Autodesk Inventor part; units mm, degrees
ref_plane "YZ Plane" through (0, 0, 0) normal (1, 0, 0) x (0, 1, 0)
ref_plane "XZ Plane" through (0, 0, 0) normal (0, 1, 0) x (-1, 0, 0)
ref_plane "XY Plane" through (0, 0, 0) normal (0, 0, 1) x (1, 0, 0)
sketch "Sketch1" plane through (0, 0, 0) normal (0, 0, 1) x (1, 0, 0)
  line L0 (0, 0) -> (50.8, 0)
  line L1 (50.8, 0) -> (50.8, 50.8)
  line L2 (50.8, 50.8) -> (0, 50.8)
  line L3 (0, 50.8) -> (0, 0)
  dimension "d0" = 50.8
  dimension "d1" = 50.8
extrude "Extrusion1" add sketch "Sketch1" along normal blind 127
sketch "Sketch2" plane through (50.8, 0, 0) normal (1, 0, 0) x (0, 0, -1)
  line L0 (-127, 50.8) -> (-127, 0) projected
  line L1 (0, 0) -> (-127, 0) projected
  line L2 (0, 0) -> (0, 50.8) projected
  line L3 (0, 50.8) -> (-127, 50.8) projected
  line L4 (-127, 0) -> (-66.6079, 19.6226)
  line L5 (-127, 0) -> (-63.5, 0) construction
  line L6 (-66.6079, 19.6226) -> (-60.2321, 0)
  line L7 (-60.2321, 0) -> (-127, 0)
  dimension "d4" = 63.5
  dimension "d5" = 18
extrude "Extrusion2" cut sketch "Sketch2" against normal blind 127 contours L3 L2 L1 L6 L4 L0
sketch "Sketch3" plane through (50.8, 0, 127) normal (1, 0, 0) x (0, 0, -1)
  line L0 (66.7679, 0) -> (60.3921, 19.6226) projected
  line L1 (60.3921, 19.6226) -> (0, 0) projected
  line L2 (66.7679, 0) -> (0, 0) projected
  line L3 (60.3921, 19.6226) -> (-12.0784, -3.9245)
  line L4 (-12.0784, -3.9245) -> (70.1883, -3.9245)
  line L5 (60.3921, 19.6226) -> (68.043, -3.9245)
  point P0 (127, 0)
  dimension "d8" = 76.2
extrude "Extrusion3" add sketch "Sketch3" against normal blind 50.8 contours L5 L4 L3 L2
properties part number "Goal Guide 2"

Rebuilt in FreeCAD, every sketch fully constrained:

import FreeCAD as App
import Part
import Sketcher

V = App.Vector
Q = App.Units.Quantity


def add_polygon(sketch, points):
    """Adds a closed chain of lines whose ends are joined by coincident constraints."""
    first, n = sketch.GeometryCount, len(points)
    for a, b in zip(points, points[1:] + points[:1]):
        sketch.addGeometry(Part.LineSegment(App.Vector(*a, 0), App.Vector(*b, 0)), False)
    for i in range(n):
        sketch.addConstraint(Sketcher.Constraint("Coincident", first + i, 2, first + (i + 1) % n, 1))

doc = App.newDocument("Part")
body = doc.addObject("PartDesign::Body", "Body")

# Sketch on XY plane
sketch1 = doc.addObject("Sketcher::SketchObject", "Sketch")
body.addObject(sketch1)
sketch1.AttachmentSupport = (doc.XY_Plane, [""])
sketch1.MapMode = "FlatFace"
add_polygon(sketch1, [(0, 51), (0, 0), (51, 0), (51, 51)])  # lines 0-3
sketch1.addConstraint([
    Sketcher.Constraint("Vertical", 0),
    Sketcher.Constraint("Horizontal", 1),
    Sketcher.Constraint("Vertical", 2),
    Sketcher.Constraint("Horizontal", 3),
    Sketcher.Constraint("Coincident", 0, 2, -1, 1),
    Sketcher.Constraint("Equal", 3, 0),
    Sketcher.Constraint("DistanceX", 1, 1, 1, 2, Q("2 in")),
])
pad1 = doc.addObject("PartDesign::Pad", "Pad")
body.addObject(pad1)
pad1.Profile = sketch1
pad1.Length = Q("5 in")

# Sketch on YZ plane
sketch2 = doc.addObject("Sketcher::SketchObject", "Sketch001")
body.addObject(sketch2)
sketch2.AttachmentSupport = (doc.YZ_Plane, [""])
sketch2.MapMode = "FlatFace"
sketch2.AttachmentOffset = App.Placement(V(0, 0, 2 * 25.4), App.Rotation())
add_polygon(sketch2, [(51, 0), (51, 127), (0, 127), (20, 67), (0, 60), (0, 0)])  # lines 0-5
sketch2.addConstraint([
    Sketcher.Constraint("Vertical", 0),
    Sketcher.Constraint("Horizontal", 1),
    Sketcher.Constraint("Vertical", 4),
    Sketcher.Constraint("Horizontal", 5),
    Sketcher.Constraint("Coincident", 4, 2, -1, 1),
    Sketcher.Constraint("PointOnObject", 1, 2, -2),
    Sketcher.Constraint("Perpendicular", 2, 3),
    Sketcher.Constraint("Distance", 2, Q("2.5 in")),
    Sketcher.Constraint("DistanceX", 1, 2, 1, 1, Q("2 in")),
    Sketcher.Constraint("DistanceY", 0, 1, 0, 2, Q("5 in")),
    Sketcher.Constraint("Angle", 2, Q("-72 deg")),
])
pocket1 = doc.addObject("PartDesign::Pocket", "Pocket")
body.addObject(pocket1)
pocket1.Profile = sketch2
pocket1.Length = Q("5 in")

# Sketch on YZ plane
sketch3 = doc.addObject("Sketcher::SketchObject", "Sketch002")
body.addObject(sketch3)
sketch3.AttachmentSupport = (doc.YZ_Plane, [""])
sketch3.MapMode = "FlatFace"
sketch3.AttachmentOffset = App.Placement(V(0, 0, 2 * 25.4), App.Rotation())
add_polygon(sketch3, [(-3.9, 59), (0, 60.2), (0, 127), (-3.9, 139.1)])  # lines 0-3
sketch3.addConstraint([
    Sketcher.Constraint("Vertical", 1),
    Sketcher.Constraint("Vertical", 3),
    Sketcher.Constraint("PointOnObject", 0, 2, -2),
    Sketcher.Constraint("Perpendicular", 0, 2),
    Sketcher.Constraint("DistanceY", -1, 1, 1, 2, Q("5 in")),
    Sketcher.Constraint("Angle", 0, Q("18 deg")),
    Sketcher.Constraint("Distance", 2, Q("0.5 in")),
    Sketcher.Constraint("DistanceY", 1, 1, 1, 2, Q("66.768 mm")),
])
pad2 = doc.addObject("PartDesign::Pad", "Pad001")
body.addObject(pad2)
pad2.Profile = sketch3
pad2.Length = Q("2 in")
pad2.Reversed = True

doc.recompute()
